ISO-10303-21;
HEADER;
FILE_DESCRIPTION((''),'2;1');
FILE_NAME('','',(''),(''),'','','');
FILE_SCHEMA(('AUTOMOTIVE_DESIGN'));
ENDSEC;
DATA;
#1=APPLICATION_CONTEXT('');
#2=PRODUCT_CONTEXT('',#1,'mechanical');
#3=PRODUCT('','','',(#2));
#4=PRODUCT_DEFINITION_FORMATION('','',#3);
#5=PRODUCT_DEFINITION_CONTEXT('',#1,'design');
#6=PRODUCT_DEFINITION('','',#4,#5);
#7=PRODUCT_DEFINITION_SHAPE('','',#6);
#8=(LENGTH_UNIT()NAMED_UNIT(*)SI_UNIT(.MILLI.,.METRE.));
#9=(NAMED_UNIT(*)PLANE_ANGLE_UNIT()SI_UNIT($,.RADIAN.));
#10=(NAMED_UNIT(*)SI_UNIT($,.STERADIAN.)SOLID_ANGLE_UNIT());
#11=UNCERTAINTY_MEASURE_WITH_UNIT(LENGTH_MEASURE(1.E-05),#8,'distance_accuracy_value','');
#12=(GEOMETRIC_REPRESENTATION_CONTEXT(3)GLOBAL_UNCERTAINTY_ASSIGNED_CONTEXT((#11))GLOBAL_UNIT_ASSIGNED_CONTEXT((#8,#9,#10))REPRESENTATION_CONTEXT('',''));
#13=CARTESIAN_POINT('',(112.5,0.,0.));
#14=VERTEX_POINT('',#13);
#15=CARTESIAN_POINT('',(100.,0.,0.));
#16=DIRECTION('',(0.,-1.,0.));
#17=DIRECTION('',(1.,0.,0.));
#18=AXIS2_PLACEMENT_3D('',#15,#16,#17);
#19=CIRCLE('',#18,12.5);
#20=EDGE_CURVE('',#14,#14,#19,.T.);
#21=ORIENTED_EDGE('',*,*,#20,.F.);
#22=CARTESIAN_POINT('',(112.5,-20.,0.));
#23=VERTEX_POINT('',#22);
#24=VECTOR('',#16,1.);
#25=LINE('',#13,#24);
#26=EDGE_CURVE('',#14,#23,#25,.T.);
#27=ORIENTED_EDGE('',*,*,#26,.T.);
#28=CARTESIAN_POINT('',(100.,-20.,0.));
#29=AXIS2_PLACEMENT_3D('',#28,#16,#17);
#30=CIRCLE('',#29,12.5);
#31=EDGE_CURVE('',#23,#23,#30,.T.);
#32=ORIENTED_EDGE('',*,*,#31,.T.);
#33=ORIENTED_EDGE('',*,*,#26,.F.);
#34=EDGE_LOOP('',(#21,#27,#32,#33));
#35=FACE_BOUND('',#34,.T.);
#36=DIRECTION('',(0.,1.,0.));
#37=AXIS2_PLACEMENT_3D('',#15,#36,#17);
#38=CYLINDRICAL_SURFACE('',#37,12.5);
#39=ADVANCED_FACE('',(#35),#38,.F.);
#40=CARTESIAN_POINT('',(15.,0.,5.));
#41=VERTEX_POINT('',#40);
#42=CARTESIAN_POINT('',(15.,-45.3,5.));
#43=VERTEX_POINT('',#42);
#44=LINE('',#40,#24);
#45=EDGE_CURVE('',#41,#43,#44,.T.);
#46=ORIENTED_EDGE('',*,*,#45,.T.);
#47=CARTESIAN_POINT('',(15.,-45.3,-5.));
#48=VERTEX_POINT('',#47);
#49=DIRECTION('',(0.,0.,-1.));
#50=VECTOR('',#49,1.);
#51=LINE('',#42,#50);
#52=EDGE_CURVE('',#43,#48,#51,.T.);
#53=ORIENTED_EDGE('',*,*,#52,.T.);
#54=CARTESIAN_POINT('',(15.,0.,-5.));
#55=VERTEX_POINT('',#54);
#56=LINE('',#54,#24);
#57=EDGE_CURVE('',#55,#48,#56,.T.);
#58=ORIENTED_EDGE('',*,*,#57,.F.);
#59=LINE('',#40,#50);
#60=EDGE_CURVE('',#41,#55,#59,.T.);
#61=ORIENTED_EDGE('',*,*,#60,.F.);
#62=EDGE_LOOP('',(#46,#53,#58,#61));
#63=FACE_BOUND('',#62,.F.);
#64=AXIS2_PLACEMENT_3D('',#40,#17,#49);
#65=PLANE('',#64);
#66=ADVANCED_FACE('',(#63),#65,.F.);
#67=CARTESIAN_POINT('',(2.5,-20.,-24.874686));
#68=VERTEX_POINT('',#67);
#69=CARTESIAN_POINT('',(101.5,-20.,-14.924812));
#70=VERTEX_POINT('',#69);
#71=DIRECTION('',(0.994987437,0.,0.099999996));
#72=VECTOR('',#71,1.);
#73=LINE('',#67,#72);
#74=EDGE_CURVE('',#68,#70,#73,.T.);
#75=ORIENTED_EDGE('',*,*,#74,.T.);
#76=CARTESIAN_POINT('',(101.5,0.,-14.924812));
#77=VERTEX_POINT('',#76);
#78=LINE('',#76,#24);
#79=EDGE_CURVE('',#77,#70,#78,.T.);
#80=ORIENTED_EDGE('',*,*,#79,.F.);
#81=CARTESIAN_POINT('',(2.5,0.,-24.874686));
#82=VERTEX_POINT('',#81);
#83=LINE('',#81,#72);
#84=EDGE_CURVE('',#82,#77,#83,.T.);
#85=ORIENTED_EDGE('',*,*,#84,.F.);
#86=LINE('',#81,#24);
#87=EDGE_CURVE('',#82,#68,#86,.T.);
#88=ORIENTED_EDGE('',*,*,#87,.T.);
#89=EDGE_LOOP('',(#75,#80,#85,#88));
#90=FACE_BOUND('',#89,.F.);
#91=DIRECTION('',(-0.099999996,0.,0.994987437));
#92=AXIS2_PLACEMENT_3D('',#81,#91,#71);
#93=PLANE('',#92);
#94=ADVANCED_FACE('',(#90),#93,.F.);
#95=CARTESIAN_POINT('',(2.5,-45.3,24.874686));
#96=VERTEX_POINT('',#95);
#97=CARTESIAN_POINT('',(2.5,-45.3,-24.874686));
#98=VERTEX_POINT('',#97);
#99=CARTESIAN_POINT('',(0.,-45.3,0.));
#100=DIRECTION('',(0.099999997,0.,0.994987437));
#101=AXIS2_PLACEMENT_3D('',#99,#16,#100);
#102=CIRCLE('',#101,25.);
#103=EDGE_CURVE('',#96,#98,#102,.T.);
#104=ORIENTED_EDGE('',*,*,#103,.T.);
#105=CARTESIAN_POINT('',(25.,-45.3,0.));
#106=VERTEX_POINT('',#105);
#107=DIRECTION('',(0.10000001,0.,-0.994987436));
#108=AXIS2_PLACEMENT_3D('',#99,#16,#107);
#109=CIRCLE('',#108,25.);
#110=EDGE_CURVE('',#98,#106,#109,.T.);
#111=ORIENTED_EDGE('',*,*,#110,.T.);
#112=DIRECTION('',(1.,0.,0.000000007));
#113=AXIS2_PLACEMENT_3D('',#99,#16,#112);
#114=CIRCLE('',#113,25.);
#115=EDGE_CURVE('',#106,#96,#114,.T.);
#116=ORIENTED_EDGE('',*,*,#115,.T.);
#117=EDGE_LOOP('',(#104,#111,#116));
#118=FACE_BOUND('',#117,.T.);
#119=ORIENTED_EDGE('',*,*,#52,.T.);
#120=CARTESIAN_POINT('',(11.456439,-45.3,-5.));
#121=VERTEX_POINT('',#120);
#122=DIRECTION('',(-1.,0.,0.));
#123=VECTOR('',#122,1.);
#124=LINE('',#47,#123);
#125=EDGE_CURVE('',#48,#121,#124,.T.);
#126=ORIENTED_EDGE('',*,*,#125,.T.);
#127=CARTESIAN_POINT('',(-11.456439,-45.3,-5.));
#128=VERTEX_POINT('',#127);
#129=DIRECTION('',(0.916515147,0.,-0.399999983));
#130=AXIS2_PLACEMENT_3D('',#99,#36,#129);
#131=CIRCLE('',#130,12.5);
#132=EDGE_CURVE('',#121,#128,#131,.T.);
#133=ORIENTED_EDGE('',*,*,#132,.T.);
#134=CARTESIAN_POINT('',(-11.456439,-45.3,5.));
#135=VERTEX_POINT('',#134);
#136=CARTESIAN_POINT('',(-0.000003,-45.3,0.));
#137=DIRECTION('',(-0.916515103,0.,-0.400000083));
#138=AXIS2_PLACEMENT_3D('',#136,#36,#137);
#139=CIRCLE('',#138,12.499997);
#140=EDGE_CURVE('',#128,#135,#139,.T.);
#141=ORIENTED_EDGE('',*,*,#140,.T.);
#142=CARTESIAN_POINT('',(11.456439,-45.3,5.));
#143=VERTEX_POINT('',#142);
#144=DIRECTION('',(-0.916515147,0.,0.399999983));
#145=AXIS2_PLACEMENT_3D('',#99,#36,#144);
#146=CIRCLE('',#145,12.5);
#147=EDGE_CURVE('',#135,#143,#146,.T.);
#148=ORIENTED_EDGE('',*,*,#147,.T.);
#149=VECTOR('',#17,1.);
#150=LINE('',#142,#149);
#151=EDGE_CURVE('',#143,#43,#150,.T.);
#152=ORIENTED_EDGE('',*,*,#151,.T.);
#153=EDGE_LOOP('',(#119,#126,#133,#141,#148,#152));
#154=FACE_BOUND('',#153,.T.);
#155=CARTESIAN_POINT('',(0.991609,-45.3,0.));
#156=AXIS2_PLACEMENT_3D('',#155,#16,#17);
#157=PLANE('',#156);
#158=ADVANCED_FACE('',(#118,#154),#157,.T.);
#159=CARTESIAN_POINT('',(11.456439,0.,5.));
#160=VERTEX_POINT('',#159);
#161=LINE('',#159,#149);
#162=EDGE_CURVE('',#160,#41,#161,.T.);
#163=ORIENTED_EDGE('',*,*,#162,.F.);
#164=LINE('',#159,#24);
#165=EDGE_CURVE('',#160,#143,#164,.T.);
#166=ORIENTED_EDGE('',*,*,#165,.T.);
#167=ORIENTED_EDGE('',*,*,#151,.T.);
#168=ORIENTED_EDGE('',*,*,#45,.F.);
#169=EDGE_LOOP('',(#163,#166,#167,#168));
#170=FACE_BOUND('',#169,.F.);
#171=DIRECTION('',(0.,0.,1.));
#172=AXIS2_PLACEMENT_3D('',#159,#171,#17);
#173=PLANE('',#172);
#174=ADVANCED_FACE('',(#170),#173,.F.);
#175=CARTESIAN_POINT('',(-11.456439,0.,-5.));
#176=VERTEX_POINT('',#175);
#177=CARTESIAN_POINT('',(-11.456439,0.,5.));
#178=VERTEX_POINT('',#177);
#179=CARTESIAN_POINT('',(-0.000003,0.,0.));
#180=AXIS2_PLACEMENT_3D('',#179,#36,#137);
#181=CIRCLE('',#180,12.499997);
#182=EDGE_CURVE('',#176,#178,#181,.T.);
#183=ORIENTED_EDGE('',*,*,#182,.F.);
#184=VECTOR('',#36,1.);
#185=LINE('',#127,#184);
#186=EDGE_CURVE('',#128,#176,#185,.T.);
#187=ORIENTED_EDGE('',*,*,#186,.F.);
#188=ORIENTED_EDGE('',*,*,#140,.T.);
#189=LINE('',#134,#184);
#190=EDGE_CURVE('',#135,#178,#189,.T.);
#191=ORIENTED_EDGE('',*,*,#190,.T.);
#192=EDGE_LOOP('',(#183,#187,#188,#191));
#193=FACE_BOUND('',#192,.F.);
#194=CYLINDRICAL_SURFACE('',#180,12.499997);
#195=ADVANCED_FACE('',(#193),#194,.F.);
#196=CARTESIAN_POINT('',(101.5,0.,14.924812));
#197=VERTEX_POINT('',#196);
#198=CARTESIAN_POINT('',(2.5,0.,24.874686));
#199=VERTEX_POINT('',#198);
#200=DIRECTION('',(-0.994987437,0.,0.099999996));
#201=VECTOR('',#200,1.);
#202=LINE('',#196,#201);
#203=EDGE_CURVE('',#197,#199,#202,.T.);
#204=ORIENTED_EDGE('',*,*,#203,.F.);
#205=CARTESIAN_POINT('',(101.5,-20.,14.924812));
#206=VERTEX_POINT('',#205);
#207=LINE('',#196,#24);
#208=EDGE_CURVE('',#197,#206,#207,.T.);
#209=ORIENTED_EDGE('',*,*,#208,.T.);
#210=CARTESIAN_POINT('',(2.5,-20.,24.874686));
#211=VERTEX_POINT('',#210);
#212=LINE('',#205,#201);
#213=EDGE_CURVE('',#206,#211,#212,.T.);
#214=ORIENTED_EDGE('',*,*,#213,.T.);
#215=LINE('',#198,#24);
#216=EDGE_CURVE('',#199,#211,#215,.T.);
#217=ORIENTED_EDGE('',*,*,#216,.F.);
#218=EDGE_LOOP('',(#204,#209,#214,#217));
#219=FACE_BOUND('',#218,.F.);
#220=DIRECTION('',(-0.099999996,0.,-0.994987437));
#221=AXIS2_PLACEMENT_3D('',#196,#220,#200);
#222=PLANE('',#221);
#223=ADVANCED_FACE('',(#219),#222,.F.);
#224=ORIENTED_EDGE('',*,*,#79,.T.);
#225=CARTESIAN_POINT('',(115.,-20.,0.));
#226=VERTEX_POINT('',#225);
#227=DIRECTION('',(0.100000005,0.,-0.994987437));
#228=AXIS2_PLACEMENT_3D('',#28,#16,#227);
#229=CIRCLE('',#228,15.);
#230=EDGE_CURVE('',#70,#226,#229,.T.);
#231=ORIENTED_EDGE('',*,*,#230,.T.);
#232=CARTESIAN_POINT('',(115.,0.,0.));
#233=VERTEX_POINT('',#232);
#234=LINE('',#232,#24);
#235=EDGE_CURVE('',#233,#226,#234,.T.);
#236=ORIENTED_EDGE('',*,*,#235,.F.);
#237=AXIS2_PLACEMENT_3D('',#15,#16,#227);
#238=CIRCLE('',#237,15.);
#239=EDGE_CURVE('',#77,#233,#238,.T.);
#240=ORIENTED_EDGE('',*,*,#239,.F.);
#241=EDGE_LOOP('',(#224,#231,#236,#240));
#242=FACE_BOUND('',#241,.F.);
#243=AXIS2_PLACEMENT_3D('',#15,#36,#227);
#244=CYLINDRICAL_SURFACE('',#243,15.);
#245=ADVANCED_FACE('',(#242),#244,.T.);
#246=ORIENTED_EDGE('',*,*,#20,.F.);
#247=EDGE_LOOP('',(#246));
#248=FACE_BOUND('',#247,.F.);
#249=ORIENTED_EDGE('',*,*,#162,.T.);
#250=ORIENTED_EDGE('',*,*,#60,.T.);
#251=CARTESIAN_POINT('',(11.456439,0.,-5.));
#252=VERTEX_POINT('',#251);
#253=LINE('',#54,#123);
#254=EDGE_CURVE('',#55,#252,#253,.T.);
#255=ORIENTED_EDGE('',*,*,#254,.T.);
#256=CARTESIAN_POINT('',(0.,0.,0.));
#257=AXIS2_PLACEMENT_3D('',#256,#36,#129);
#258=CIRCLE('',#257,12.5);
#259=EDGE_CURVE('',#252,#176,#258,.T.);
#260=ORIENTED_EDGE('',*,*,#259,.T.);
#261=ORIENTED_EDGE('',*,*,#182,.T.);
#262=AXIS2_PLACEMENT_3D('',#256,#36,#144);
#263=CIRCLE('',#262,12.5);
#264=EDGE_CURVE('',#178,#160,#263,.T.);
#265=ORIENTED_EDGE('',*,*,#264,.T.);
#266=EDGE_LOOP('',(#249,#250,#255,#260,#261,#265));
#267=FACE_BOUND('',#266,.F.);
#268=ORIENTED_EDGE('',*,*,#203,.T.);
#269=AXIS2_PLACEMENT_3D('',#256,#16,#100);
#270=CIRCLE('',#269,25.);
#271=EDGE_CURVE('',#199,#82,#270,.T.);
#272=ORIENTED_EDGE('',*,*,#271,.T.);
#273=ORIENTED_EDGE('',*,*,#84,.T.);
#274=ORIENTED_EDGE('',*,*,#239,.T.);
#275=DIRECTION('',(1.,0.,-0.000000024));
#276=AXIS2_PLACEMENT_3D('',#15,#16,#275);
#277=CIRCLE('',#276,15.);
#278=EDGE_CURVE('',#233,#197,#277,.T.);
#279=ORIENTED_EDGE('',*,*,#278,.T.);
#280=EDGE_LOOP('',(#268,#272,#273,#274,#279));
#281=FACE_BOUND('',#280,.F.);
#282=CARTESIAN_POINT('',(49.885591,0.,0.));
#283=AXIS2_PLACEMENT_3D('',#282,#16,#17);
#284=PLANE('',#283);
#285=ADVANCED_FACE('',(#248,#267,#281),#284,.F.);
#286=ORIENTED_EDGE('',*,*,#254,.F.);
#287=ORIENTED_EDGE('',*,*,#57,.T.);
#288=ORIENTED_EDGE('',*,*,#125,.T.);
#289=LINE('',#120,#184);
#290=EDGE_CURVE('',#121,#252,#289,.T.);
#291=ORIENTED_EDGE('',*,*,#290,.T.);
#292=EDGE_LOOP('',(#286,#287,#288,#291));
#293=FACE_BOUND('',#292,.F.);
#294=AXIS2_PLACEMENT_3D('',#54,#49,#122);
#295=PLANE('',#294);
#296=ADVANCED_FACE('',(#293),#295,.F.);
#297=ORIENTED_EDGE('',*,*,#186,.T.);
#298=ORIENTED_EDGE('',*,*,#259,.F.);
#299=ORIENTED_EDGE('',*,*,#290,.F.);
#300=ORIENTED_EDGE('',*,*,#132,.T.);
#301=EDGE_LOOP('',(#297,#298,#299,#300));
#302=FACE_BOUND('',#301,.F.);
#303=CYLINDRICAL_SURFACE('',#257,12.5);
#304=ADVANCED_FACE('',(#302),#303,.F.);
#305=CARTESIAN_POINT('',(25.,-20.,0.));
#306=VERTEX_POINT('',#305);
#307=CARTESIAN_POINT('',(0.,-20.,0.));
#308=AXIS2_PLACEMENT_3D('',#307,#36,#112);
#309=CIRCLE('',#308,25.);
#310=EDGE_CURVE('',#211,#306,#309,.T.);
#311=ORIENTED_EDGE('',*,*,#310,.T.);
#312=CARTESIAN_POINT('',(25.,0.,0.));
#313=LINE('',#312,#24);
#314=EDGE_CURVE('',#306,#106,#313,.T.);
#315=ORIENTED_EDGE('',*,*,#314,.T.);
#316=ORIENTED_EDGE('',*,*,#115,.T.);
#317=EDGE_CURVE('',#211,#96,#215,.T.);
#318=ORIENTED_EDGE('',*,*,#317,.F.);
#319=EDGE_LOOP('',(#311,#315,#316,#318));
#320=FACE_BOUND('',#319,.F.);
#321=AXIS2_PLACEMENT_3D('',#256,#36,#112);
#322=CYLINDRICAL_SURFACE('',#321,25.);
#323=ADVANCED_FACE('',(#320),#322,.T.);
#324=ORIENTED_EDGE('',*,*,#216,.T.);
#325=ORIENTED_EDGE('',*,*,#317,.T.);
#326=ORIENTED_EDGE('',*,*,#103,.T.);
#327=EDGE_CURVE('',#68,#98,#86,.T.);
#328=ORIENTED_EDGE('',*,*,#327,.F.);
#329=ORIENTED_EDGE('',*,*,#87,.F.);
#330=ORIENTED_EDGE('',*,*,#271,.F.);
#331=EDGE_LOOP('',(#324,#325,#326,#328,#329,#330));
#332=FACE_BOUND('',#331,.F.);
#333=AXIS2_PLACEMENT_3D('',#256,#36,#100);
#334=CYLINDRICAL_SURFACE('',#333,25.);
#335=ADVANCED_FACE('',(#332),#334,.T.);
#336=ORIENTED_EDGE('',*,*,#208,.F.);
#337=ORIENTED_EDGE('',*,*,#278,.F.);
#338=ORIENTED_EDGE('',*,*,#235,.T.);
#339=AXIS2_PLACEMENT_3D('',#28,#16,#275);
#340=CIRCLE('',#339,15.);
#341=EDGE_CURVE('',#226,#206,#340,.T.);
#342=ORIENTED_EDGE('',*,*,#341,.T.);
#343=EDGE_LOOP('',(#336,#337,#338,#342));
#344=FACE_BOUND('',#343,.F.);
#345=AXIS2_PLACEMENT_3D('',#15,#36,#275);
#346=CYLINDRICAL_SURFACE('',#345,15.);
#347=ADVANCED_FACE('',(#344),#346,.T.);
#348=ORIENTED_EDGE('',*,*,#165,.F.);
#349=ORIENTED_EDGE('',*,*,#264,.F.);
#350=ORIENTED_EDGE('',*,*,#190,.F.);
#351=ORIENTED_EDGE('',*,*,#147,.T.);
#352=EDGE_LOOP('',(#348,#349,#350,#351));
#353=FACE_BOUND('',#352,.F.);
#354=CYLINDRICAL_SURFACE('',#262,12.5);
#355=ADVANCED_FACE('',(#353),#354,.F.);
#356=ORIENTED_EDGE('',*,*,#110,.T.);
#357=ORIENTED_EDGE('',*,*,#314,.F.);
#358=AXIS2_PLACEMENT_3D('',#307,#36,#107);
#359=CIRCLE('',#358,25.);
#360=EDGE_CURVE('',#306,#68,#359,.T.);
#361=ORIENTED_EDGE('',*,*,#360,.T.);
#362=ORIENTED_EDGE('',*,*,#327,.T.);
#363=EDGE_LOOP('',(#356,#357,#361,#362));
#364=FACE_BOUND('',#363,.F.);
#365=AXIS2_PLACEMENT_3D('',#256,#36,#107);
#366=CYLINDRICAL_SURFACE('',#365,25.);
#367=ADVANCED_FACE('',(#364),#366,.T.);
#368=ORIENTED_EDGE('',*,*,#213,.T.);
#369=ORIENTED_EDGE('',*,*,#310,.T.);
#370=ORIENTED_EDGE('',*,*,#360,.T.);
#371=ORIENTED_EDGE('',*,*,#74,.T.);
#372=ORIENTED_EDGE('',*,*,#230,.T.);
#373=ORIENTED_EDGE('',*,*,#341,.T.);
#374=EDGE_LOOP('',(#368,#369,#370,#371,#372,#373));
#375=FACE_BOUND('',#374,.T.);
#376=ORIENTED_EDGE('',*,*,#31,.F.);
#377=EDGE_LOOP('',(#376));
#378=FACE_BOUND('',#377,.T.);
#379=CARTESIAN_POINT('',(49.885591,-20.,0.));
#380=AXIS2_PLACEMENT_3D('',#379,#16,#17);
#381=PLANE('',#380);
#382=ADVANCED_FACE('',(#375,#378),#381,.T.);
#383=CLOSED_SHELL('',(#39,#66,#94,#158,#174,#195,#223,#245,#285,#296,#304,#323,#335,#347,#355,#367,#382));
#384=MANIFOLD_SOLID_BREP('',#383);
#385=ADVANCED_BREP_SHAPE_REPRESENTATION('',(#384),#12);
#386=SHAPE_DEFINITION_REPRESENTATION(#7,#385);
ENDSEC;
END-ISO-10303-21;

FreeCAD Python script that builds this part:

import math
import FreeCAD as App
import Part
import Sketcher

V = App.Vector
Q = App.Units.Quantity

doc = App.newDocument("Part")
body = doc.addObject("PartDesign::Body", "Body")

# Sketch on XZ plane
sketch1 = body.newObject("Sketcher::SketchObject", "Sketch")
sketch1.AttachmentSupport = (doc.getObject("XZ_Plane"), [""])
sketch1.MapMode = "FlatFace"
sketch1.addGeometry(Part.LineSegment(V(2.5, -24.9, 0), V(101.5, -14.9, 0)), False)
sketch1.addGeometry(Part.ArcOfCircle(Part.Circle(V(100, 0, 0), V(0, 0, 1), 15), math.radians(-84), math.radians(0)), False)
sketch1.addGeometry(Part.ArcOfCircle(Part.Circle(V(100, 0, 0), V(0, 0, 1), 15), math.radians(0), math.radians(84)), False)
sketch1.addGeometry(Part.LineSegment(V(101.5, 14.9, 0), V(2.5, 24.9, 0)), False)
sketch1.addGeometry(Part.ArcOfCircle(Part.Circle(V(0, 0, 0), V(0, 0, 1), 25), math.radians(84), math.radians(276)), False)
sketch1.addGeometry(Part.ArcOfCircle(Part.Circle(V(0, 0, 0), V(0, 0, 1), 12.5), math.radians(24), math.radians(156)), False)
sketch1.addGeometry(Part.LineSegment(V(11.5, 5, 0), V(15, 5, 0)), False)
sketch1.addGeometry(Part.LineSegment(V(15, 5, 0), V(15, -5, 0)), False)
sketch1.addGeometry(Part.LineSegment(V(15, -5, 0), V(11.5, -5, 0)), False)
sketch1.addGeometry(Part.ArcOfCircle(Part.Circle(V(0, 0, 0), V(0, 0, 1), 12.5), math.radians(-156), math.radians(-24)), False)
sketch1.addGeometry(Part.ArcOfCircle(Part.Circle(V(0, 0, 0), V(0, 0, 1), 12.5), math.radians(156), math.radians(204)), False)
sketch1.addGeometry(Part.Circle(V(100, 0, 0), V(0, 0, 1), 12.5), False)
sketch1.addConstraint(Sketcher.Constraint("Tangent", 0, 2, 1, 1))
sketch1.addConstraint(Sketcher.Constraint("Tangent", 1, 2, 2, 1))
sketch1.addConstraint(Sketcher.Constraint("Tangent", 2, 2, 3, 1))
sketch1.addConstraint(Sketcher.Constraint("Tangent", 3, 2, 4, 1))
sketch1.addConstraint(Sketcher.Constraint("Tangent", 4, 2, 0, 1))
sketch1.addConstraint(Sketcher.Constraint("Coincident", 5, 1, 6, 1))
sketch1.addConstraint(Sketcher.Constraint("Coincident", 6, 2, 7, 1))
sketch1.addConstraint(Sketcher.Constraint("Coincident", 7, 2, 8, 1))
sketch1.addConstraint(Sketcher.Constraint("Coincident", 8, 2, 9, 2))
sketch1.addConstraint(Sketcher.Constraint("Tangent", 9, 1, 10, 2))
sketch1.addConstraint(Sketcher.Constraint("Tangent", 10, 1, 5, 2))
sketch1.addConstraint(Sketcher.Constraint("Horizontal", 6))
sketch1.addConstraint(Sketcher.Constraint("Vertical", 7))
sketch1.addConstraint(Sketcher.Constraint("Horizontal", 8))
sketch1.addConstraint(Sketcher.Constraint("Coincident", 4, 3, -1, 1))
sketch1.addConstraint(Sketcher.Constraint("Coincident", 5, 3, -1, 1))
sketch1.addConstraint(Sketcher.Constraint("Coincident", 9, 3, -1, 1))
sketch1.addConstraint(Sketcher.Constraint("Coincident", 11, 3, 1, 3))
sketch1.addConstraint(Sketcher.Constraint("Equal", 1, 2))
sketch1.addConstraint(Sketcher.Constraint("Equal", 9, 11))
sketch1.addConstraint(Sketcher.Constraint("PointOnObject", 1, 3, -1))
sketch1.addConstraint(Sketcher.Constraint("PointOnObject", 1, 2, -1))
sketch1.addConstraint(Sketcher.Constraint("Horizontal", 8, 2, 9, 1))
sketch1.addConstraint(Sketcher.Constraint("Horizontal", 6, 2, 10, 1))
sketch1.addConstraint(Sketcher.Constraint("Vertical", 5, 1, 8, 2))
sketch1.addConstraint(Sketcher.Constraint("Diameter", 11, Q("25 mm")))
sketch1.addConstraint(Sketcher.Constraint("Radius", 1, Q("15 mm")))
sketch1.addConstraint(Sketcher.Constraint("Radius", 4, Q("25 mm")))
sketch1.addConstraint(Sketcher.Constraint("DistanceY", 7, 2, 7, 1, Q("10 mm")))
sketch1.addConstraint(Sketcher.Constraint("DistanceX", -1, 1, 1, 3, Q("100 mm")))
sketch1.addConstraint(Sketcher.Constraint("DistanceX", -1, 1, 6, 2, Q("15 mm")))
pad1 = body.newObject("PartDesign::Pad", "Pad")
pad1.Profile = sketch1
pad1.Length = 20

# Sketch on XZ plane
sketch2 = body.newObject("Sketcher::SketchObject", "Sketch001")
sketch2.AttachmentSupport = (doc.getObject("XZ_Plane"), [""])
sketch2.MapMode = "FlatFace"
sketch2.addGeometry(Part.ArcOfCircle(Part.Circle(V(0, 0, 0), V(0, 0, 1), 25), math.radians(-84), math.radians(0)), False)
sketch2.addGeometry(Part.ArcOfCircle(Part.Circle(V(0, 0, 0), V(0, 0, 1), 25), math.radians(0), math.radians(84)), False)
sketch2.addGeometry(Part.ArcOfCircle(Part.Circle(V(0, 0, 0), V(0, 0, 1), 25), math.radians(84), math.radians(276)), False)
sketch2.addGeometry(Part.ArcOfCircle(Part.Circle(V(0, 0, 0), V(0, 0, 1), 12.5), math.radians(-156), math.radians(-24)), False)
sketch2.addGeometry(Part.ArcOfCircle(Part.Circle(V(0, 0, 0), V(0, 0, 1), 12.5), math.radians(156), math.radians(204)), False)
sketch2.addGeometry(Part.ArcOfCircle(Part.Circle(V(0, 0, 0), V(0, 0, 1), 12.5), math.radians(24), math.radians(156)), False)
sketch2.addGeometry(Part.LineSegment(V(11.5, 5, 0), V(15, 5, 0)), False)
sketch2.addGeometry(Part.LineSegment(V(15, 5, 0), V(15, -5, 0)), False)
sketch2.addGeometry(Part.LineSegment(V(15, -5, 0), V(11.5, -5, 0)), False)
sketch2.addConstraint(Sketcher.Constraint("Tangent", 0, 2, 1, 1))
sketch2.addConstraint(Sketcher.Constraint("Tangent", 1, 2, 2, 1))
sketch2.addConstraint(Sketcher.Constraint("Tangent", 2, 2, 0, 1))
sketch2.addConstraint(Sketcher.Constraint("Tangent", 3, 1, 4, 2))
sketch2.addConstraint(Sketcher.Constraint("Tangent", 4, 1, 5, 2))
sketch2.addConstraint(Sketcher.Constraint("Coincident", 5, 1, 6, 1))
sketch2.addConstraint(Sketcher.Constraint("Coincident", 6, 2, 7, 1))
sketch2.addConstraint(Sketcher.Constraint("Coincident", 7, 2, 8, 1))
sketch2.addConstraint(Sketcher.Constraint("Coincident", 8, 2, 3, 2))
sketch2.addConstraint(Sketcher.Constraint("Horizontal", 6))
sketch2.addConstraint(Sketcher.Constraint("Vertical", 7))
sketch2.addConstraint(Sketcher.Constraint("Horizontal", 8))
sketch2.addConstraint(Sketcher.Constraint("Coincident", 0, 3, -1, 1))
sketch2.addConstraint(Sketcher.Constraint("Coincident", 3, 3, -1, 1))
sketch2.addConstraint(Sketcher.Constraint("Coincident", 5, 3, -1, 1))
sketch2.addConstraint(Sketcher.Constraint("PointOnObject", 0, 2, -1))
sketch2.addConstraint(Sketcher.Constraint("Horizontal", 4, 1, 5, 1))
sketch2.addConstraint(Sketcher.Constraint("Horizontal", 3, 1, 7, 2))
sketch2.addConstraint(Sketcher.Constraint("Vertical", 1, 2, 2, 2))
sketch2.addConstraint(Sketcher.Constraint("Vertical", 3, 1, 4, 1))
sketch2.addConstraint(Sketcher.Constraint("Radius", 0, Q("25 mm")))
sketch2.addConstraint(Sketcher.Constraint("Radius", 3, Q("12.5 mm")))
sketch2.addConstraint(Sketcher.Constraint("DistanceY", 7, 2, 7, 1, Q("10 mm")))
sketch2.addConstraint(Sketcher.Constraint("DistanceX", -1, 1, 6, 2, Q("15 mm")))
sketch2.addConstraint(Sketcher.Constraint("DistanceX", -1, 1, 1, 2, Q("2.5 mm")))
pad2 = body.newObject("PartDesign::Pad", "Pad001")
pad2.Profile = sketch2
pad2.Length = 45.3

doc.recompute()
